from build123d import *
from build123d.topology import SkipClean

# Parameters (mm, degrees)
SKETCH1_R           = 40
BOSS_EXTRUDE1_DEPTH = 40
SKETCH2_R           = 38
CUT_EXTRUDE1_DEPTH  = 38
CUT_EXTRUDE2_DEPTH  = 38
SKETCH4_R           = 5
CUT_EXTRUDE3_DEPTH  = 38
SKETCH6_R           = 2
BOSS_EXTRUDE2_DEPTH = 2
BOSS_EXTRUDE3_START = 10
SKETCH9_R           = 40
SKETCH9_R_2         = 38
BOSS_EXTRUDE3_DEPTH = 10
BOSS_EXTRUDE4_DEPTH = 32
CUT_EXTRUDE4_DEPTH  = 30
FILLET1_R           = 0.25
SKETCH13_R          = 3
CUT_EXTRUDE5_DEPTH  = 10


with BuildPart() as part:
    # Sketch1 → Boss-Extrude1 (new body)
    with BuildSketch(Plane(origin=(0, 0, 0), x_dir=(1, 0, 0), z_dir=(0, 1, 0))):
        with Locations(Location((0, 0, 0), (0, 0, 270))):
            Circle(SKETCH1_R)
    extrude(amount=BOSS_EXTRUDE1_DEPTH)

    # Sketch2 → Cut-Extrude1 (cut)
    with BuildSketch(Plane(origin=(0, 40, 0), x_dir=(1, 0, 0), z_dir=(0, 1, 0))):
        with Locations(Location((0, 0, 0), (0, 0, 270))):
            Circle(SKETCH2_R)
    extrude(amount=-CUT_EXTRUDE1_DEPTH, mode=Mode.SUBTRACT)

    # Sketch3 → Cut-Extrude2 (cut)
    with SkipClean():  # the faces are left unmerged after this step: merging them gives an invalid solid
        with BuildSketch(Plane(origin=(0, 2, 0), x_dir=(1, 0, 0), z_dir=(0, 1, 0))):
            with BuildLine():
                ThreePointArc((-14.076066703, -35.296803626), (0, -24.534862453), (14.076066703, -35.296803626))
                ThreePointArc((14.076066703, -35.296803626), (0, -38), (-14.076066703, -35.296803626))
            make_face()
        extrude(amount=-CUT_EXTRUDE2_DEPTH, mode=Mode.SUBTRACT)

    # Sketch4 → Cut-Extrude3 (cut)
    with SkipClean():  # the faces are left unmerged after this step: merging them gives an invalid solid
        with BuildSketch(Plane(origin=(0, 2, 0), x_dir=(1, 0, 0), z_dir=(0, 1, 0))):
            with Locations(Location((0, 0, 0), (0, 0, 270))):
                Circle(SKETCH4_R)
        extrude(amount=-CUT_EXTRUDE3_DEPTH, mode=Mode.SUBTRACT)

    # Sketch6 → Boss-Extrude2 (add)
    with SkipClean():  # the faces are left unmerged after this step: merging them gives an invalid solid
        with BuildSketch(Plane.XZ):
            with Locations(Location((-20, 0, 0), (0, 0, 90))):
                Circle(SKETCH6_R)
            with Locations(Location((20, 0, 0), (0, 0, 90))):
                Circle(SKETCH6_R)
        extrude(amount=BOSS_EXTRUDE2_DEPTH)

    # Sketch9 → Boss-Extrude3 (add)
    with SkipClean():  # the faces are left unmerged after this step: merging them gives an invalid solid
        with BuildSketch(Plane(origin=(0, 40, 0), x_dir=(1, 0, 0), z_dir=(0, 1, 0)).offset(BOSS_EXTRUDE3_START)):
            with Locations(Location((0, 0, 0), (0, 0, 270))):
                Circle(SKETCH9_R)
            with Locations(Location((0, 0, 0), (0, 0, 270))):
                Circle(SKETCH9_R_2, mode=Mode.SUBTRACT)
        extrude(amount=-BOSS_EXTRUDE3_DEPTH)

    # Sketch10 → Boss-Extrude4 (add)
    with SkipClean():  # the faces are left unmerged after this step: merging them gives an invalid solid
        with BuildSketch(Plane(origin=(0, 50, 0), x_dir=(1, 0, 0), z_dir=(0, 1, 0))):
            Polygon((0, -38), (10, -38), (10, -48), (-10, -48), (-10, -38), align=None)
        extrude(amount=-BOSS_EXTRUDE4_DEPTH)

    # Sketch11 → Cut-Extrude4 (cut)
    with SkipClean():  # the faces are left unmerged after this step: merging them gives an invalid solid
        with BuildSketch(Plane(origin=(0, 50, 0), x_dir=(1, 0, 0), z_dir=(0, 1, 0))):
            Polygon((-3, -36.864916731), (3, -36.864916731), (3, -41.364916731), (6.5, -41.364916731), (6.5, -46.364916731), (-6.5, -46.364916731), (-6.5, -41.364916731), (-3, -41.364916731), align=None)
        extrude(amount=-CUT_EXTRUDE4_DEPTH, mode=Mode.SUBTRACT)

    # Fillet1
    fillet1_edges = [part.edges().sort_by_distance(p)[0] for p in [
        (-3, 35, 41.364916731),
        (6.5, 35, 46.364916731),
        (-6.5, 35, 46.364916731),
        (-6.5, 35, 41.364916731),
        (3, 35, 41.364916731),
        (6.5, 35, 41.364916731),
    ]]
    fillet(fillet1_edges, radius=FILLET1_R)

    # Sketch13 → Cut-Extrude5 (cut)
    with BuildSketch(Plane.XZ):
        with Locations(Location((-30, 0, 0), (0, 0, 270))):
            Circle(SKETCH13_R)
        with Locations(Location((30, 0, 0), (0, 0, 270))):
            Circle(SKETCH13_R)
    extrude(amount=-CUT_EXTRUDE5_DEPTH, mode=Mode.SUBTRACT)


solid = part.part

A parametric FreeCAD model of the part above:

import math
import FreeCAD as App
import Part
import Sketcher
from FreeCAD import Vector


def edges_at(feature, points):
    """Names of the edges that pass closest to the given points."""
    edges = feature.Shape.Edges
    near = lambda p: min(range(len(edges)), key=lambda i: edges[i].distToShape(Part.Vertex(*p))[0])
    return sorted({f"Edge{near(p) + 1}" for p in points})


def add_polygon(sketch, points):
    """Adds a closed chain of lines whose ends are joined by coincident constraints."""
    first, n = sketch.GeometryCount, len(points)
    for a, b in zip(points, points[1:] + points[:1]):
        sketch.addGeometry(Part.LineSegment(App.Vector(*a, 0), App.Vector(*b, 0)), False)
    for i in range(n):
        sketch.addConstraint(Sketcher.Constraint("Coincident", first + i, 2, first + (i + 1) % n, 1))

doc = App.newDocument("Part")
body = doc.addObject("PartDesign::Body", "Body")

sketch1 = body.newObject("Sketcher::SketchObject", "Sketch")
sketch1.AttachmentSupport = (doc.getObject("XZ_Plane"), [""])
sketch1.MapMode = "FlatFace"
sketch1.addGeometry(Part.Circle(Vector(0, 0, 0), Vector(0, 0, 1), 40), False)
sketch1.addConstraint(Sketcher.Constraint("Coincident", 0, 3, -1, 1))
sketch1.addConstraint(Sketcher.Constraint("Diameter", 0, 80.0))
pad1 = body.newObject("PartDesign::Pad", "Pad")
pad1.Profile = sketch1
pad1.Length = 40
pad1.Reversed = True

sketch2 = body.newObject("Sketcher::SketchObject", "Sketch001")
sketch2.AttachmentSupport = (doc.getObject("XZ_Plane"), [""])
sketch2.MapMode = "FlatFace"
sketch2.AttachmentOffset = App.Placement(Vector(0, 0, -40), App.Rotation())
sketch2.addGeometry(Part.Circle(Vector(0, 0, 0), Vector(0, 0, 1), 38), False)
sketch2.addConstraint(Sketcher.Constraint("Coincident", 0, 3, -1, 1))
sketch2.addConstraint(Sketcher.Constraint("Diameter", 0, 76.0))
pocket1 = body.newObject("PartDesign::Pocket", "Pocket")
pocket1.Profile = sketch2
pocket1.Length = 38
pocket1.Reversed = True

sketch3 = body.newObject("Sketcher::SketchObject", "Sketch002")
sketch3.AttachmentSupport = (doc.getObject("XZ_Plane"), [""])
sketch3.MapMode = "FlatFace"
sketch3.AttachmentOffset = App.Placement(Vector(0, 0, -2), App.Rotation())
sketch3.addGeometry(Part.ArcOfCircle(Part.Circle(Vector(0, 39, 0), Vector(0, 0, 1), 15), math.radians(-165), math.radians(-15)), False)
sketch3.addGeometry(Part.ArcOfCircle(Part.Circle(Vector(0, 0, 0), Vector(0, 0, 1), 38), math.radians(68), math.radians(112)), False)
sketch3.addConstraint(Sketcher.Constraint("Coincident", 0, 1, 1, 2))
sketch3.addConstraint(Sketcher.Constraint("Coincident", 1, 1, 0, 2))
sketch3.addConstraint(Sketcher.Constraint("Coincident", 1, 3, -1, 1))
sketch3.addConstraint(Sketcher.Constraint("PointOnObject", 0, 3, -2))
sketch3.addConstraint(Sketcher.Constraint("Radius", 1, 38.0))
sketch3.addConstraint(Sketcher.Constraint("Radius", 0, 14.586357))
sketch3.addConstraint(Sketcher.Constraint("DistanceY", -1, 1, 0, 3, 39.121219))
pocket2 = body.newObject("PartDesign::Pocket", "Pocket001")
pocket2.Profile = sketch3
pocket2.Length = 38
pocket2.Reversed = True

sketch4 = body.newObject("Sketcher::SketchObject", "Sketch003")
sketch4.AttachmentSupport = (doc.getObject("XZ_Plane"), [""])
sketch4.MapMode = "FlatFace"
sketch4.AttachmentOffset = App.Placement(Vector(0, 0, -2), App.Rotation())
sketch4.addGeometry(Part.Circle(Vector(0, 0, 0), Vector(0, 0, 1), 5), False)
sketch4.addConstraint(Sketcher.Constraint("Coincident", 0, 3, -1, 1))
sketch4.addConstraint(Sketcher.Constraint("Diameter", 0, 10.0))
pocket3 = body.newObject("PartDesign::Pocket", "Pocket002")
pocket3.Profile = sketch4
pocket3.Length = 38
pocket3.Reversed = True

sketch5 = body.newObject("Sketcher::SketchObject", "Sketch004")
sketch5.AttachmentSupport = (doc.getObject("XZ_Plane"), [""])
sketch5.MapMode = "FlatFace"
sketch5.addGeometry(Part.Circle(Vector(-20, 0, 0), Vector(0, 0, 1), 2), False)
sketch5.addGeometry(Part.Circle(Vector(20, 0, 0), Vector(0, 0, 1), 2), False)
sketch5.addConstraint(Sketcher.Constraint("Equal", 0, 1))
sketch5.addConstraint(Sketcher.Constraint("Symmetric", 0, 3, 1, 3, -1, 1))
sketch5.addConstraint(Sketcher.Constraint("PointOnObject", 0, 3, -1))
sketch5.addConstraint(Sketcher.Constraint("Diameter", 0, 4.0))
sketch5.addConstraint(Sketcher.Constraint("DistanceX", 0, 3, -1, 1, 20.0))
pad2 = body.newObject("PartDesign::Pad", "Pad001")
pad2.Profile = sketch5
pad2.Length = 2

sketch6 = body.newObject("Sketcher::SketchObject", "Sketch005")
sketch6.AttachmentSupport = (doc.getObject("XZ_Plane"), [""])
sketch6.MapMode = "FlatFace"
sketch6.AttachmentOffset = App.Placement(Vector(0, 0, -50), App.Rotation())
sketch6.addGeometry(Part.Circle(Vector(0, 0, 0), Vector(0, 0, 1), 40), False)
sketch6.addGeometry(Part.Circle(Vector(0, 0, 0), Vector(0, 0, 1), 38), False)
sketch6.addConstraint(Sketcher.Constraint("Coincident", 0, 3, -1, 1))
sketch6.addConstraint(Sketcher.Constraint("Coincident", 1, 3, -1, 1))
sketch6.addConstraint(Sketcher.Constraint("Diameter", 0, 80.0))
sketch6.addConstraint(Sketcher.Constraint("Diameter", 1, 76.0))
pad3 = body.newObject("PartDesign::Pad", "Pad002")
pad3.Profile = sketch6
pad3.Length = 10

sketch7 = body.newObject("Sketcher::SketchObject", "Sketch006")
sketch7.AttachmentSupport = (doc.getObject("XZ_Plane"), [""])
sketch7.MapMode = "FlatFace"
sketch7.AttachmentOffset = App.Placement(Vector(0, 0, -50), App.Rotation())
add_polygon(sketch7, [(10, 38), (-10, 38), (-10, 48), (10, 48)])
sketch7.addConstraint(Sketcher.Constraint("Horizontal", 0))
sketch7.addConstraint(Sketcher.Constraint("Vertical", 1))
sketch7.addConstraint(Sketcher.Constraint("Horizontal", 2))
sketch7.addConstraint(Sketcher.Constraint("Vertical", 3))
sketch7.addConstraint(Sketcher.Constraint("DistanceX", 0, 2, 0, 1, 20.0))
sketch7.addConstraint(Sketcher.Constraint("DistanceY", 1, 1, 1, 2, 10.0))
sketch7.addConstraint(Sketcher.Constraint("DistanceX", 0, 2, -1, 1, 10.0))
sketch7.addConstraint(Sketcher.Constraint("DistanceY", -1, 1, 0, 2, 38.0))
pad4 = body.newObject("PartDesign::Pad", "Pad003")
pad4.Profile = sketch7
pad4.Length = 32

sketch8 = body.newObject("Sketcher::SketchObject", "Sketch007")
sketch8.AttachmentSupport = (doc.getObject("XZ_Plane"), [""])
sketch8.MapMode = "FlatFace"
sketch8.AttachmentOffset = App.Placement(Vector(0, 0, -50), App.Rotation())
add_polygon(sketch8, [(3, 36.9), (-3, 36.9), (-3, 41.4), (-6.5, 41.4), (-6.5, 46.4), (6.5, 46.4), (6.5, 41.4), (3, 41.4)])
sketch8.addConstraint(Sketcher.Constraint("Horizontal", 0))
sketch8.addConstraint(Sketcher.Constraint("Vertical", 1))
sketch8.addConstraint(Sketcher.Constraint("Horizontal", 2))
sketch8.addConstraint(Sketcher.Constraint("Vertical", 3))
sketch8.addConstraint(Sketcher.Constraint("Horizontal", 4))
sketch8.addConstraint(Sketcher.Constraint("Vertical", 5))
sketch8.addConstraint(Sketcher.Constraint("Horizontal", 6))
sketch8.addConstraint(Sketcher.Constraint("Vertical", 7))
sketch8.addConstraint(Sketcher.Constraint("Symmetric", 2, 2, 5, 2, -2))
sketch8.addConstraint(Sketcher.Constraint("Equal", 2, 6))
sketch8.addConstraint(Sketcher.Constraint("DistanceX", 0, 2, 0, 1, 6.0))
sketch8.addConstraint(Sketcher.Constraint("DistanceX", 4, 1, 4, 2, 13.0))
sketch8.addConstraint(Sketcher.Constraint("DistanceY", 3, 1, 3, 2, 5.0))
sketch8.addConstraint(Sketcher.Constraint("DistanceY", 1, 1, 1, 2, 4.5))
sketch8.addConstraint(Sketcher.Constraint("DistanceY", -1, 1, 0, 2, 36.864917))
pocket4 = body.newObject("PartDesign::Pocket", "Pocket003")
pocket4.Profile = sketch8
pocket4.Length = 30
pocket4.Reversed = True
doc.recompute()

fillet = body.newObject("PartDesign::Fillet", "Fillet")
fillet.Base = (pocket4, edges_at(pocket4, [
    (-3, 35, 41.365),
    (6.5, 35, 46.365),
    (-6.5, 35, 46.365),
    (-6.5, 35, 41.365),
    (3, 35, 41.365),
    (6.5, 35, 41.365),
]))
fillet.Radius = 0.25

sketch9 = body.newObject("Sketcher::SketchObject", "Sketch008")
sketch9.AttachmentSupport = (doc.getObject("XZ_Plane"), [""])
sketch9.MapMode = "FlatFace"
sketch9.addGeometry(Part.Circle(Vector(-30, 0, 0), Vector(0, 0, 1), 3), False)
sketch9.addGeometry(Part.Circle(Vector(30, 0, 0), Vector(0, 0, 1), 3), False)
sketch9.addConstraint(Sketcher.Constraint("Equal", 0, 1))
sketch9.addConstraint(Sketcher.Constraint("Symmetric", 0, 3, 1, 3, -1, 1))
sketch9.addConstraint(Sketcher.Constraint("PointOnObject", 0, 3, -1))
sketch9.addConstraint(Sketcher.Constraint("Diameter", 0, 6.0))
sketch9.addConstraint(Sketcher.Constraint("DistanceX", 0, 3, -1, 1, 30.0))
pocket5 = body.newObject("PartDesign::Pocket", "Pocket004")
pocket5.Profile = sketch9
pocket5.Length = 10

doc.recompute()
